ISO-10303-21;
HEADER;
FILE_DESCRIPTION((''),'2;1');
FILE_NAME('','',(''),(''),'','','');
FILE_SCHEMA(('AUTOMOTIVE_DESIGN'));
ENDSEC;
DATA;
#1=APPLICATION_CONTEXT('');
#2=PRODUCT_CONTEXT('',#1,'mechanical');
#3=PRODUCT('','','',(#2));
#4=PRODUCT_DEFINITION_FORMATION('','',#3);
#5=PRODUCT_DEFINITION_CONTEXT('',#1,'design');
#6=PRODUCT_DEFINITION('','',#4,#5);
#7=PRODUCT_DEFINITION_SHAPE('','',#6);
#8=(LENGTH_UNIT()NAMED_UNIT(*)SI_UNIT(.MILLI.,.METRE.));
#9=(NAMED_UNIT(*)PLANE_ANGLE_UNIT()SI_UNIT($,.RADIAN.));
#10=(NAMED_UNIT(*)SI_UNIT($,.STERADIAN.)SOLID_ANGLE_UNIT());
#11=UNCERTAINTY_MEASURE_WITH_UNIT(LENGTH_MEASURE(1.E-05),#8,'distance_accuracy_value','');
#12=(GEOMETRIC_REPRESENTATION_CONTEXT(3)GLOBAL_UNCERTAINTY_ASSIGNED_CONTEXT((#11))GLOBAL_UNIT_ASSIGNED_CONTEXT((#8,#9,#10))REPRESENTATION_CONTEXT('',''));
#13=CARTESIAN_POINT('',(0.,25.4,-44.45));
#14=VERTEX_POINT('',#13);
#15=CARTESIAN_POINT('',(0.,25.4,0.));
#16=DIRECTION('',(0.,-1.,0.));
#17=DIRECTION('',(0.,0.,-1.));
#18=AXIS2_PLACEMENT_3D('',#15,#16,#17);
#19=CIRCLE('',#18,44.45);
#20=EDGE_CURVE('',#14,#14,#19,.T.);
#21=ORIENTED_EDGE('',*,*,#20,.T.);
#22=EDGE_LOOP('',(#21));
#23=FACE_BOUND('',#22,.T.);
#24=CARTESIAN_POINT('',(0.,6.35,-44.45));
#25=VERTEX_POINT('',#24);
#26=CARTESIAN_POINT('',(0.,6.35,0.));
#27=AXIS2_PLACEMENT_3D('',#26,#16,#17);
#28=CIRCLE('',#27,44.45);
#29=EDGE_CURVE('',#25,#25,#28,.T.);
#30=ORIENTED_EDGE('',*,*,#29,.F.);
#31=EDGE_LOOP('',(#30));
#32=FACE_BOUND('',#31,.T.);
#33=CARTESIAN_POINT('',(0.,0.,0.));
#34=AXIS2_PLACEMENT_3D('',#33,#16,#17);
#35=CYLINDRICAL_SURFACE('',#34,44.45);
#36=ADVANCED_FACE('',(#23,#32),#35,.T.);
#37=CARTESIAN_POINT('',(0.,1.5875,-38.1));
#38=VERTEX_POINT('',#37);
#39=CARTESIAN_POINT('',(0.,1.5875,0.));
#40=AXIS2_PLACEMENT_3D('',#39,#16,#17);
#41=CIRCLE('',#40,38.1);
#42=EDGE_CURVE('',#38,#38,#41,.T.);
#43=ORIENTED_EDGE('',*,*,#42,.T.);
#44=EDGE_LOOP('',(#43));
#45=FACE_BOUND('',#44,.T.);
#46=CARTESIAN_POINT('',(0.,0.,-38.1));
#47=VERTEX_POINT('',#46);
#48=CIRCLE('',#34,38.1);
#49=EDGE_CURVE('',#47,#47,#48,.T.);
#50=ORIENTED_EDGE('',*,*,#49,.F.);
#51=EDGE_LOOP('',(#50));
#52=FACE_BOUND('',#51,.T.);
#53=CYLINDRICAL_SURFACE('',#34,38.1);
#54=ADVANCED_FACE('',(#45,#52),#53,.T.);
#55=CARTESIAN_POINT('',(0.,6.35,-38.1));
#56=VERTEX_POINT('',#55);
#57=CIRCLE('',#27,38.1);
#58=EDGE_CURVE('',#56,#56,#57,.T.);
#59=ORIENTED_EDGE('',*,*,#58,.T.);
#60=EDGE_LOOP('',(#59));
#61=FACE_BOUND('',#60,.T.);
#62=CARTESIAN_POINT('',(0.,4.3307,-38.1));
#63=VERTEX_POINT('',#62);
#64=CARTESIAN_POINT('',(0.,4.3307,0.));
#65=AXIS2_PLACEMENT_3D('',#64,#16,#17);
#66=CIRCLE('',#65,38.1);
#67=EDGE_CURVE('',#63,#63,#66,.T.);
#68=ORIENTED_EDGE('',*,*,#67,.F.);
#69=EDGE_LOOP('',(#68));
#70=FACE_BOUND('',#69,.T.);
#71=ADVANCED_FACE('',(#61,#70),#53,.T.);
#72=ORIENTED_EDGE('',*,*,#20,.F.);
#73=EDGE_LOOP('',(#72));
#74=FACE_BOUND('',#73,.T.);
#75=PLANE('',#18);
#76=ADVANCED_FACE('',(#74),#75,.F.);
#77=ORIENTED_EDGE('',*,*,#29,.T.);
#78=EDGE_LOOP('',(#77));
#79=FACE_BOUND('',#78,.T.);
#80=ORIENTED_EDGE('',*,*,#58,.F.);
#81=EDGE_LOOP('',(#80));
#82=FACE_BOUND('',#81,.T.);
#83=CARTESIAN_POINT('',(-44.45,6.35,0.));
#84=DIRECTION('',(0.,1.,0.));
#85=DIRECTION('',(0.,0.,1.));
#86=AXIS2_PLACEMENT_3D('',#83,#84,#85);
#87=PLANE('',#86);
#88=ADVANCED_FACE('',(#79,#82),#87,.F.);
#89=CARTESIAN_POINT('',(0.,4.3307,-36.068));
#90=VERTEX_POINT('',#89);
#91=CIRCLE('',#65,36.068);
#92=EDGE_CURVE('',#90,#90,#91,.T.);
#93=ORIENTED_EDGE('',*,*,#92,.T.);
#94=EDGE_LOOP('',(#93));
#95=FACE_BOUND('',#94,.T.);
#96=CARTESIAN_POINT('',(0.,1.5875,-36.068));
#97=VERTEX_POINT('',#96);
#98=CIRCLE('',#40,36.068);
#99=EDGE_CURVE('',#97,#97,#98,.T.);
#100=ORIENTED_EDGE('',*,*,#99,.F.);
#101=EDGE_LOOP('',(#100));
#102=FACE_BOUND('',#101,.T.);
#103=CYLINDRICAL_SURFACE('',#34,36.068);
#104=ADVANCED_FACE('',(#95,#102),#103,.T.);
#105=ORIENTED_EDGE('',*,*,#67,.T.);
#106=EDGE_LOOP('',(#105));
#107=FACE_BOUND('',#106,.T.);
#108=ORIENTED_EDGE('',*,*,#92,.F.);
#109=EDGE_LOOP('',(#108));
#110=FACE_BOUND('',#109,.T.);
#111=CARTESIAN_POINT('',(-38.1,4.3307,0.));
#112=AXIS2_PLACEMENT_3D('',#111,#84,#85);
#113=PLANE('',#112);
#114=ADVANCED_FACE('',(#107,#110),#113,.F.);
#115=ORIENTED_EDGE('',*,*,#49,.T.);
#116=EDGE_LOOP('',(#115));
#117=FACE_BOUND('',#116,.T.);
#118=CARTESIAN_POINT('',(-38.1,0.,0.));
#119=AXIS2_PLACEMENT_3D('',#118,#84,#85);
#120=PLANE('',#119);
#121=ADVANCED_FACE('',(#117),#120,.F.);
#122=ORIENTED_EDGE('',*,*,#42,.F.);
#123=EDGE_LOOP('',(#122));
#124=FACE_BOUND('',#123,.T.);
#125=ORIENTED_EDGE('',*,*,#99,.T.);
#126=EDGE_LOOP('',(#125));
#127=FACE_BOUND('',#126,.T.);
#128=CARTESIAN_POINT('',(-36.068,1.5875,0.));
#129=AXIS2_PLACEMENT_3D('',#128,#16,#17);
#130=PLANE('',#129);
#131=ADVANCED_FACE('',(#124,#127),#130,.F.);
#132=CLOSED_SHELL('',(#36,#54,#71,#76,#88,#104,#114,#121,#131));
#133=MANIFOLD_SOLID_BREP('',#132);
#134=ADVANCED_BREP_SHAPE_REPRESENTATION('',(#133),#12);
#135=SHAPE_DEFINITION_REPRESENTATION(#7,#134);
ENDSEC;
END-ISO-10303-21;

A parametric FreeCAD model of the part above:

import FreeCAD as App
import Part
import Sketcher
Q = App.Units.Quantity

doc = App.newDocument("Part")
body = doc.addObject("PartDesign::Body", "Body")

# Sketch on XY plane
sketch1 = body.newObject("Sketcher::SketchObject", "Sketch")
sketch1.AttachmentSupport = (doc.getObject("XY_Plane"), [""])
sketch1.MapMode = "FlatFace"
sketch1.addGeometry(Part.LineSegment(App.Vector(-38.1, 0, 0), App.Vector(0, 0, 0)), False)
sketch1.addGeometry(Part.LineSegment(App.Vector(0, 0, 0), App.Vector(0, 25.4, 0)), False)
sketch1.addGeometry(Part.LineSegment(App.Vector(0, 25.4, 0), App.Vector(-44.5, 25.4, 0)), False)
sketch1.addGeometry(Part.LineSegment(App.Vector(-44.5, 25.4, 0), App.Vector(-44.5, 6.3, 0)), False)
sketch1.addGeometry(Part.LineSegment(App.Vector(-44.5, 6.3, 0), App.Vector(-38.1, 6.3, 0)), False)
sketch1.addGeometry(Part.LineSegment(App.Vector(-38.1, 6.3, 0), App.Vector(-38.1, 4.3, 0)), False)
sketch1.addGeometry(Part.LineSegment(App.Vector(-38.1, 4.3, 0), App.Vector(-36.1, 4.3, 0)), False)
sketch1.addGeometry(Part.LineSegment(App.Vector(-36.1, 4.3, 0), App.Vector(-36.1, 1.6, 0)), False)
sketch1.addGeometry(Part.LineSegment(App.Vector(-36.1, 1.6, 0), App.Vector(-38.1, 1.6, 0)), False)
sketch1.addGeometry(Part.LineSegment(App.Vector(-38.1, 1.6, 0), App.Vector(-38.1, 0, 0)), False)
sketch1.addConstraint(Sketcher.Constraint("Coincident", 0, 2, 1, 1))
sketch1.addConstraint(Sketcher.Constraint("Coincident", 1, 2, 2, 1))
sketch1.addConstraint(Sketcher.Constraint("Coincident", 2, 2, 3, 1))
sketch1.addConstraint(Sketcher.Constraint("Coincident", 3, 2, 4, 1))
sketch1.addConstraint(Sketcher.Constraint("Coincident", 4, 2, 5, 1))
sketch1.addConstraint(Sketcher.Constraint("Coincident", 5, 2, 6, 1))
sketch1.addConstraint(Sketcher.Constraint("Coincident", 6, 2, 7, 1))
sketch1.addConstraint(Sketcher.Constraint("Coincident", 7, 2, 8, 1))
sketch1.addConstraint(Sketcher.Constraint("Coincident", 8, 2, 9, 1))
sketch1.addConstraint(Sketcher.Constraint("Coincident", 9, 2, 0, 1))
sketch1.addConstraint(Sketcher.Constraint("Horizontal", 0))
sketch1.addConstraint(Sketcher.Constraint("Vertical", 1))
sketch1.addConstraint(Sketcher.Constraint("Horizontal", 2))
sketch1.addConstraint(Sketcher.Constraint("Vertical", 3))
sketch1.addConstraint(Sketcher.Constraint("Horizontal", 4))
sketch1.addConstraint(Sketcher.Constraint("Vertical", 5))
sketch1.addConstraint(Sketcher.Constraint("Horizontal", 6))
sketch1.addConstraint(Sketcher.Constraint("Vertical", 7))
sketch1.addConstraint(Sketcher.Constraint("Horizontal", 8))
sketch1.addConstraint(Sketcher.Constraint("Vertical", 9))
sketch1.addConstraint(Sketcher.Constraint("Coincident", 0, 2, -1, 1))
sketch1.addConstraint(Sketcher.Constraint("Vertical", 5, 2, 8, 2))
sketch1.addConstraint(Sketcher.Constraint("DistanceY", 1, 1, 1, 2, Q("1 in")))
sketch1.addConstraint(Sketcher.Constraint("DistanceX", 0, 1, 0, 2, Q("1.5 in")))
sketch1.addConstraint(Sketcher.Constraint("DistanceX", 2, 2, 2, 1, Q("1.75 in")))
sketch1.addConstraint(Sketcher.Constraint("DistanceX", 6, 1, 6, 2, Q("0.08 in")))
sketch1.addConstraint(Sketcher.Constraint("DistanceY", 3, 2, 3, 1, Q("0.75 in")))
sketch1.addConstraint(Sketcher.Constraint("DistanceY", 7, 2, 7, 1, Q("0.108 in")))
sketch1.addConstraint(Sketcher.Constraint("DistanceY", 9, 2, 9, 1, Q("0.0625 in")))
revolution = body.newObject("PartDesign::Revolution", "Revolution")
revolution.Profile = sketch1
revolution.ReferenceAxis = (sketch1, ["V_Axis"])
revolution.Angle = 360

doc.recompute()
